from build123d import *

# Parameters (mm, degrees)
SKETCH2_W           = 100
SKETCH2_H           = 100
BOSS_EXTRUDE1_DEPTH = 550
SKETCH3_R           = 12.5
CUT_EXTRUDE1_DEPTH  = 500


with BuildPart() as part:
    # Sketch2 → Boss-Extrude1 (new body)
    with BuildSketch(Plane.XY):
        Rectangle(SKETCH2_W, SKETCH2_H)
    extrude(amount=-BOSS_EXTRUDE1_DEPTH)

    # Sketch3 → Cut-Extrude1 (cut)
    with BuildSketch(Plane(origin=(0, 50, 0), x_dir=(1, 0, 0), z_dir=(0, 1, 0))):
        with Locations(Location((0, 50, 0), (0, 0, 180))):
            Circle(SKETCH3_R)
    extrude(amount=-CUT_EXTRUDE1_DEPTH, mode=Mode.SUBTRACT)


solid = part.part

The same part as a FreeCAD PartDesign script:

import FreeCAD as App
import Part
import Sketcher

V = App.Vector

doc = App.newDocument("Part")
body = doc.addObject("PartDesign::Body", "Body")

sketch1 = body.newObject("Sketcher::SketchObject", "Sketch")
sketch1.AttachmentSupport = (doc.getObject("XY_Plane"), [""])
sketch1.MapMode = "FlatFace"
sketch1.addGeometry([
    Part.LineSegment(V(-50, 50, 0), V(-50, -50, 0)),
    Part.LineSegment(V(-50, -50, 0), V(50, -50, 0)),
    Part.LineSegment(V(50, -50, 0), V(50, 50, 0)),
    Part.LineSegment(V(50, 50, 0), V(-50, 50, 0)),
], False)
sketch1.addConstraint([
    Sketcher.Constraint("Coincident", 0, 2, 1, 1),
    Sketcher.Constraint("Coincident", 1, 2, 2, 1),
    Sketcher.Constraint("Coincident", 2, 2, 3, 1),
    Sketcher.Constraint("Coincident", 3, 2, 0, 1),
    Sketcher.Constraint("Vertical", 0),
    Sketcher.Constraint("Horizontal", 1),
    Sketcher.Constraint("Vertical", 2),
    Sketcher.Constraint("Horizontal", 3),
    Sketcher.Constraint("Symmetric", 0, 2, 2, 2, -1, 1),
    Sketcher.Constraint("Equal", 3, 0),
    Sketcher.Constraint("DistanceX", 1, 1, 1, 2, 100.0),
])
pad1 = body.newObject("PartDesign::Pad", "Pad")
pad1.Profile = sketch1
pad1.Length = 550
pad1.Reversed = True

sketch2 = body.newObject("Sketcher::SketchObject", "Sketch001")
sketch2.AttachmentSupport = (doc.getObject("XZ_Plane"), [""])
sketch2.MapMode = "FlatFace"
sketch2.AttachmentOffset = App.Placement(V(0, 0, -50), App.Rotation())
sketch2.addGeometry(Part.Circle(V(0, -50, 0), V(0, 0, 1), 12), False)
sketch2.addConstraint([
    Sketcher.Constraint("PointOnObject", 0, 3, -2),
    Sketcher.Constraint("Diameter", 0, 25.0),
    Sketcher.Constraint("DistanceY", 0, 3, -1, 1, 50.0),
])
pocket1 = body.newObject("PartDesign::Pocket", "Pocket")
pocket1.Profile = sketch2
pocket1.Length = 500
pocket1.Reversed = True

doc.recompute()
